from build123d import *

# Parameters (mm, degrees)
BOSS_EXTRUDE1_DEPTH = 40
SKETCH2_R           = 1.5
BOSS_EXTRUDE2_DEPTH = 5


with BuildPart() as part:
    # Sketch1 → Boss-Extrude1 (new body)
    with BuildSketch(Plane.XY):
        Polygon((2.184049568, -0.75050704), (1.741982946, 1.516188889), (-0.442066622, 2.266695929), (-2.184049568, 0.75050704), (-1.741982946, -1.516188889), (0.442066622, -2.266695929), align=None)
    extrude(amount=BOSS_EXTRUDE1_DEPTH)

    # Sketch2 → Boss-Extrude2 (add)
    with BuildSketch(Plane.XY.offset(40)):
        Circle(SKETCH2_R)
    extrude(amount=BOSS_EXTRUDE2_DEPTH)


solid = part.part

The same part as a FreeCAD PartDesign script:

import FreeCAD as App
import Part
import Sketcher

doc = App.newDocument("Part")
body = doc.addObject("PartDesign::Body", "Body")

sketch1 = body.newObject("Sketcher::SketchObject", "Sketch")
sketch1.AttachmentSupport = (doc.getObject("XY_Plane"), [""])
sketch1.MapMode = "FlatFace"
sketch1.addGeometry([
    Part.LineSegment(App.Vector(2.2, -0.8, 0), App.Vector(1.7, 1.5, 0)),
    Part.LineSegment(App.Vector(1.7, 1.5, 0), App.Vector(-0.4, 2.3, 0)),
    Part.LineSegment(App.Vector(-0.4, 2.3, 0), App.Vector(-2.2, 0.8, 0)),
    Part.LineSegment(App.Vector(-2.2, 0.8, 0), App.Vector(-1.7, -1.5, 0)),
    Part.LineSegment(App.Vector(-1.7, -1.5, 0), App.Vector(0.4, -2.3, 0)),
    Part.LineSegment(App.Vector(0.4, -2.3, 0), App.Vector(2.2, -0.8, 0)),
], False)
sketch1.addConstraint([
    Sketcher.Constraint("Coincident", 0, 2, 1, 1),
    Sketcher.Constraint("Coincident", 1, 2, 2, 1),
    Sketcher.Constraint("Coincident", 2, 2, 3, 1),
    Sketcher.Constraint("Coincident", 3, 2, 4, 1),
    Sketcher.Constraint("Coincident", 4, 2, 5, 1),
    Sketcher.Constraint("Coincident", 5, 2, 0, 1),
    Sketcher.Constraint("Symmetric", 0, 2, 3, 2, -1, 1),
    Sketcher.Constraint("Symmetric", 1, 2, 4, 2, -1, 1),
    Sketcher.Constraint("Symmetric", 2, 2, 5, 2, -1, 1),
    Sketcher.Constraint("Equal", 0, 1),
    Sketcher.Constraint("Equal", 1, 2),
    Sketcher.Constraint("Distance", 0, 2.309401),
    Sketcher.Constraint("DistanceX", 2, 2, 5, 2, 4.368099),
    Sketcher.Constraint("DistanceY", -1, 1, 0, 2, 1.516189),
    Sketcher.Constraint("DistanceX", 1, 2, 0, 2, 2.18405),
])
pad1 = body.newObject("PartDesign::Pad", "Pad")
pad1.Profile = sketch1
pad1.Length = 40

sketch2 = body.newObject("Sketcher::SketchObject", "Sketch001")
sketch2.AttachmentSupport = (doc.getObject("XY_Plane"), [""])
sketch2.MapMode = "FlatFace"
sketch2.AttachmentOffset = App.Placement(App.Vector(0, 0, 40), App.Rotation())
sketch2.addGeometry(Part.Circle(App.Vector(0, 0, 0), App.Vector(0, 0, 1), 1.5), False)
sketch2.addConstraint([
    Sketcher.Constraint("Coincident", 0, 3, -1, 1),
    Sketcher.Constraint("Diameter", 0, 3.0),
])
pad2 = body.newObject("PartDesign::Pad", "Pad001")
pad2.Profile = sketch2
pad2.Length = 5

doc.recompute()
